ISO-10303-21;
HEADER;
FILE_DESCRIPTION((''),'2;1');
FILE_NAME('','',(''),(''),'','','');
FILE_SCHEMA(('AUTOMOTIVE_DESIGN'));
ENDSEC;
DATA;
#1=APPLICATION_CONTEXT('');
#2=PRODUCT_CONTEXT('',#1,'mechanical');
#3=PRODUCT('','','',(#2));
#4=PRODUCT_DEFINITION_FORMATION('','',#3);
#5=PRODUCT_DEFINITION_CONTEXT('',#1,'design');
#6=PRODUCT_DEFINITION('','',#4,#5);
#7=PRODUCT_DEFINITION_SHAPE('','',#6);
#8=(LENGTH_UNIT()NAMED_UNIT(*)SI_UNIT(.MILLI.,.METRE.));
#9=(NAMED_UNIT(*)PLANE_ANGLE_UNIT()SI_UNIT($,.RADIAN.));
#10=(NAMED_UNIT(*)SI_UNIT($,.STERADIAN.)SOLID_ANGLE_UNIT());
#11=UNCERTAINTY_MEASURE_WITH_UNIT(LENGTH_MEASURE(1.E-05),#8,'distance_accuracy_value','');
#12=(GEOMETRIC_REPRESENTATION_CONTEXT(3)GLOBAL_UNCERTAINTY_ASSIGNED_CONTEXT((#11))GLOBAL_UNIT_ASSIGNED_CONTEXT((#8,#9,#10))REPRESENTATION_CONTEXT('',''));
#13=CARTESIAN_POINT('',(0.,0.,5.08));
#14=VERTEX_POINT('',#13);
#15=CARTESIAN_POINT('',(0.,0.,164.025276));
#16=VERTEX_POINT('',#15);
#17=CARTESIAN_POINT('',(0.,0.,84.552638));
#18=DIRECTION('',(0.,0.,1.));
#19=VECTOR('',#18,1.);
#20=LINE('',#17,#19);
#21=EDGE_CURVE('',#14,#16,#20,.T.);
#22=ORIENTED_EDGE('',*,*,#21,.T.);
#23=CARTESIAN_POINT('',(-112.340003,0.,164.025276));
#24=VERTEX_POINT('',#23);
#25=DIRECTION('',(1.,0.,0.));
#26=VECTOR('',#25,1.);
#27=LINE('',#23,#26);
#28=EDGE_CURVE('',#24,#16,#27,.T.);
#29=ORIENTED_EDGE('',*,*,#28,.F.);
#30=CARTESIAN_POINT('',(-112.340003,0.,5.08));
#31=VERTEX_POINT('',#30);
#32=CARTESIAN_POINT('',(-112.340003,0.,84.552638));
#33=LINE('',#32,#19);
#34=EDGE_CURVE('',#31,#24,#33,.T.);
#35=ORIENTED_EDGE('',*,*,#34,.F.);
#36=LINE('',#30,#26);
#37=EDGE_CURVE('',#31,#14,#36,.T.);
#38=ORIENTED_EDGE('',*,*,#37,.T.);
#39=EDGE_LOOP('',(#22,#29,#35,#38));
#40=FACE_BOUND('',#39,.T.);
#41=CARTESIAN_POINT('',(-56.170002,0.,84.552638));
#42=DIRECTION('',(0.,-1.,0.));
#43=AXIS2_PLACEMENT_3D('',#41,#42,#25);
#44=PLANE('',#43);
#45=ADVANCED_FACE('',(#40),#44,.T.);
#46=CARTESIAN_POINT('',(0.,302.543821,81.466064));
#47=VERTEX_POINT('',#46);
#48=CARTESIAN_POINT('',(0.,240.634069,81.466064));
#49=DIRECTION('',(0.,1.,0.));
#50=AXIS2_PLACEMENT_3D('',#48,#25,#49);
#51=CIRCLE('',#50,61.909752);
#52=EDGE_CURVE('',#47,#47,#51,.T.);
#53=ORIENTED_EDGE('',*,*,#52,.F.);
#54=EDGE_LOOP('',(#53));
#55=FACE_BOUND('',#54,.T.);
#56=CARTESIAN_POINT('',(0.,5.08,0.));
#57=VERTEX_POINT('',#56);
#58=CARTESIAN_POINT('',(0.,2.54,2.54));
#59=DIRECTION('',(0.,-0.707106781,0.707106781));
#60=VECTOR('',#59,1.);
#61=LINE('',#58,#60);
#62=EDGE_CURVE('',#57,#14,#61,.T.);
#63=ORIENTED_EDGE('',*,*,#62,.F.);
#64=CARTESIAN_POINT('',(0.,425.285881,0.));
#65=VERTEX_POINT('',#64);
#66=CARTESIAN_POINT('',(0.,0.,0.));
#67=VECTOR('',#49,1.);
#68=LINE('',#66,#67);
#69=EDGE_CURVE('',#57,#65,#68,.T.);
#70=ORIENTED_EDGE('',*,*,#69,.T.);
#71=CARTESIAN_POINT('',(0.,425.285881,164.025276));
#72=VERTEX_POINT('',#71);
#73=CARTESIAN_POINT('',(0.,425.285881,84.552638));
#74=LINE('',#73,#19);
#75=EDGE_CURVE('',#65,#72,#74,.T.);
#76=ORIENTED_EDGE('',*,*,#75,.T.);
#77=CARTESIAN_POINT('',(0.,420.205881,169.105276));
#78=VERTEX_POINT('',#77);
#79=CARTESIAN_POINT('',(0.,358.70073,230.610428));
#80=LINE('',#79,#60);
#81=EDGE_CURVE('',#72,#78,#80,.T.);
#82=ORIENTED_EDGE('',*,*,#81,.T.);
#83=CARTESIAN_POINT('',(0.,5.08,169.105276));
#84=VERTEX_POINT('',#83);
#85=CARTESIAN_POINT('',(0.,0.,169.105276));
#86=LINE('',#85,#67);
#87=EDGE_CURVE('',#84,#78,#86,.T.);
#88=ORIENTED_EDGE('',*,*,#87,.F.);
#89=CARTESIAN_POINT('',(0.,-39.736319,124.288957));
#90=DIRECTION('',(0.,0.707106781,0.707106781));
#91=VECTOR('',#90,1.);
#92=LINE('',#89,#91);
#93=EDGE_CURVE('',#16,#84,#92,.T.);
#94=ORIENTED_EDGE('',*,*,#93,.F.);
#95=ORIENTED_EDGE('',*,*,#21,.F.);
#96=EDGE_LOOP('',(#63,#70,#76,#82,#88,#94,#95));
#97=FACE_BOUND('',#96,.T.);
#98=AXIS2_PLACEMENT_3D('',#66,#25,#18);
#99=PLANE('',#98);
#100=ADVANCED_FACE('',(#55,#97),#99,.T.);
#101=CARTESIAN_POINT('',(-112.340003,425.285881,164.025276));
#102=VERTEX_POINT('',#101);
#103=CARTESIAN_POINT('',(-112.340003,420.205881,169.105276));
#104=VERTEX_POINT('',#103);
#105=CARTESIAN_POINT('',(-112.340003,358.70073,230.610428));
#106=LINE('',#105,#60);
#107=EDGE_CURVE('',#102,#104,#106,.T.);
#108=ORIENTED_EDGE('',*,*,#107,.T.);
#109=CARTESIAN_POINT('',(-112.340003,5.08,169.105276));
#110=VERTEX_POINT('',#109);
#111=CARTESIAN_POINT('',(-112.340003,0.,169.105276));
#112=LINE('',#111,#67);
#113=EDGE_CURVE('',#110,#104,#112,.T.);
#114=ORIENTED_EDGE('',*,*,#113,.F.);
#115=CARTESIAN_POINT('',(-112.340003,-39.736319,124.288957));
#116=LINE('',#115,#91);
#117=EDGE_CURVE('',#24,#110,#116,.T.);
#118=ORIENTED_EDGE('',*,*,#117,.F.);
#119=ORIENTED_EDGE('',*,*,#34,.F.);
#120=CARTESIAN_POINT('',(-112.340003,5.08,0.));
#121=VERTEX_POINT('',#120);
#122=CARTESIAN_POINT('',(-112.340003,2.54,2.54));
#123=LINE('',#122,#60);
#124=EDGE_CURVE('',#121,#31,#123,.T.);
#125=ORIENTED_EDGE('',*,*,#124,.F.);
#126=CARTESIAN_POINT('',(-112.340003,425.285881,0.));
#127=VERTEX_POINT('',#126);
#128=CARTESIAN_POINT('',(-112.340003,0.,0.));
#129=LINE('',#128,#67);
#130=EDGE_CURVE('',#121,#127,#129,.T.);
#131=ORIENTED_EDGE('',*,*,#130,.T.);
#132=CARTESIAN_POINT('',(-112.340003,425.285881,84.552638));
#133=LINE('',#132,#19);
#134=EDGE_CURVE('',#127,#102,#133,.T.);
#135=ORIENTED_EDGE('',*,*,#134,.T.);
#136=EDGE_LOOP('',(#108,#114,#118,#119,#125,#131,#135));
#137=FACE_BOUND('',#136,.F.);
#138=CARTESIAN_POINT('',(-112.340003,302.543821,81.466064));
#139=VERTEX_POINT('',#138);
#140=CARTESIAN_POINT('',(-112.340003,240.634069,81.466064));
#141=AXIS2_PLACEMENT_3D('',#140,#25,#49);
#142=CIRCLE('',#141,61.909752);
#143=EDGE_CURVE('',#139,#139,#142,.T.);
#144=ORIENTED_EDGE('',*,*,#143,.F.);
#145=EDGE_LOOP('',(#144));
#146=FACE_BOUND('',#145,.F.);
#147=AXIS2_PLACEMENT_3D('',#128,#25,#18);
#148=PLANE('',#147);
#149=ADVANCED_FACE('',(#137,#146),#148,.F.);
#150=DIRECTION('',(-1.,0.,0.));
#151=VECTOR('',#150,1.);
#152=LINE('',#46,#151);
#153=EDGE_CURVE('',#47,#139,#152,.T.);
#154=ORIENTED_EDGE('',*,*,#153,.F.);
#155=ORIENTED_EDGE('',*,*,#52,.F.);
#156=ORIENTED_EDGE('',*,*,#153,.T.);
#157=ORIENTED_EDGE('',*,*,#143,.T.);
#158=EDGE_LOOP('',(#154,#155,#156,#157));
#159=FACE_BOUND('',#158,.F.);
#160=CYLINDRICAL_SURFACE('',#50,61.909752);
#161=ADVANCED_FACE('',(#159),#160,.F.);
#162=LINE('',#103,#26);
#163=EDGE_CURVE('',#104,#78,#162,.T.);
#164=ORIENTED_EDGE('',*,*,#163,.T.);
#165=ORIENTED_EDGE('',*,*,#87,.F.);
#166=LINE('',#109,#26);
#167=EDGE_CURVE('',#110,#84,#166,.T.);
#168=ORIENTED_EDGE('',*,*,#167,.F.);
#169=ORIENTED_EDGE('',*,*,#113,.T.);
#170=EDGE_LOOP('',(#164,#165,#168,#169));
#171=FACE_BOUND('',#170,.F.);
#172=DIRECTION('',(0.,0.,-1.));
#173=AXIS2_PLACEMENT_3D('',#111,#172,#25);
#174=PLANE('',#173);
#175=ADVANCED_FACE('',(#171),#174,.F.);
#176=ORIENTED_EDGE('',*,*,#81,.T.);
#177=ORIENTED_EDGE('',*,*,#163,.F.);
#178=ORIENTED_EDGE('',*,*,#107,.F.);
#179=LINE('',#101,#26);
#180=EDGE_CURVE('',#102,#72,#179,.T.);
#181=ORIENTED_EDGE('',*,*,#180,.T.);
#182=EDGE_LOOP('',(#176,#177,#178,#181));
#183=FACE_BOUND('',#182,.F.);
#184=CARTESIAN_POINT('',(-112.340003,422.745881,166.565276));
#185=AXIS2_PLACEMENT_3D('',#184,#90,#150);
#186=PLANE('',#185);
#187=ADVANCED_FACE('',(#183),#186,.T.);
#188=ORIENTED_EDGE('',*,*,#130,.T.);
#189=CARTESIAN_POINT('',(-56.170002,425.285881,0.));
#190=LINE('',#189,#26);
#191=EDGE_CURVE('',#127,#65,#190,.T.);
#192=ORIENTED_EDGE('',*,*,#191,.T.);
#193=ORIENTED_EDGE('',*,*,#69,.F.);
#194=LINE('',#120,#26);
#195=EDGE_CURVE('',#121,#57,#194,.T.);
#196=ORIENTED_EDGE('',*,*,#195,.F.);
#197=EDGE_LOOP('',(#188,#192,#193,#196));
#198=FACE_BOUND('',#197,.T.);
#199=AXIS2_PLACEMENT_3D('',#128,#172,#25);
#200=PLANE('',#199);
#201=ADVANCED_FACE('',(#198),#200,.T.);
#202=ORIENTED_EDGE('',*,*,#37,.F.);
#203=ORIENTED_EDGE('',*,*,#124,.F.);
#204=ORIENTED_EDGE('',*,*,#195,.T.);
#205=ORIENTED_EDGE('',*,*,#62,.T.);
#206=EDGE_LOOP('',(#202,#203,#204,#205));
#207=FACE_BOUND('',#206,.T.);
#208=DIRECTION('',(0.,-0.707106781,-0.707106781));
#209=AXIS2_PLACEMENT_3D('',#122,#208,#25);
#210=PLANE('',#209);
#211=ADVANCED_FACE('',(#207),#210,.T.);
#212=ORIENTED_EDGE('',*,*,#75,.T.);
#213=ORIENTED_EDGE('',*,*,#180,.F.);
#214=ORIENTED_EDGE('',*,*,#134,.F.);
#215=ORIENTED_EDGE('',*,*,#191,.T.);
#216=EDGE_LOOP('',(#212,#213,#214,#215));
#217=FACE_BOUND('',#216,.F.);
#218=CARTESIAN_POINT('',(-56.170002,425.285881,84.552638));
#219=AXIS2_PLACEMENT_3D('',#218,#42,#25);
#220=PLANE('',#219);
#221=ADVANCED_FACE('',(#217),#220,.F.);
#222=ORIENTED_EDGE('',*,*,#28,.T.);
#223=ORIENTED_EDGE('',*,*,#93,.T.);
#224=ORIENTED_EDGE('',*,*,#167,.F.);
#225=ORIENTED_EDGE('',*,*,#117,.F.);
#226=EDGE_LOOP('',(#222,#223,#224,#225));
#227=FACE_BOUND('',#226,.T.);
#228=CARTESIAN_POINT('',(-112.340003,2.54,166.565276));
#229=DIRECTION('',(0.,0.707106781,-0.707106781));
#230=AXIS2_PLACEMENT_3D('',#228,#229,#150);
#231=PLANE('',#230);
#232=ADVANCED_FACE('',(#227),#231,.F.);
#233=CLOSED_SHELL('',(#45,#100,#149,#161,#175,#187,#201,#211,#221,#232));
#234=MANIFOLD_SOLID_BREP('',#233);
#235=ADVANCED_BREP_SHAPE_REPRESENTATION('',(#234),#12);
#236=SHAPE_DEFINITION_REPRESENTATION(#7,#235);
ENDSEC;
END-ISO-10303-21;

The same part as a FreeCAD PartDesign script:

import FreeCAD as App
import Part
import Sketcher

V = App.Vector


def edges_at(feature, points):
    """Names of the edges that pass closest to the given points."""
    edges = feature.Shape.Edges
    near = lambda p: min(range(len(edges)), key=lambda i: edges[i].distToShape(Part.Vertex(*p))[0])
    return sorted({f"Edge{near(p) + 1}" for p in points})

doc = App.newDocument("Part")
params = doc.addObject("Spreadsheet::Sheet", "Params")
for row, (alias, value) in enumerate([
    ("pad1_length", "425.285881 mm"),
    ("pocket1_length", "148.800274 mm"),
    ("chamfer_size", "0.2 in"),
], start=1):
    params.set(f"A{row}", alias)
    params.set(f"B{row}", "=" + value)
    params.setAlias(f"B{row}", alias)

body = doc.addObject("PartDesign::Body", "Body")

# Sketch on XZ plane
sketch1 = body.newObject("Sketcher::SketchObject", "Sketch")
sketch1.AttachmentSupport = (doc.getObject("XZ_Plane"), [""])
sketch1.MapMode = "FlatFace"
sketch1.addGeometry(Part.LineSegment(V(-112, 169, 0), V(-112, 0, 0)), False)
sketch1.addGeometry(Part.LineSegment(V(-112, 0, 0), V(0, 0, 0)), False)
sketch1.addGeometry(Part.LineSegment(V(0, 0, 0), V(0, 169, 0)), False)
sketch1.addGeometry(Part.LineSegment(V(0, 169, 0), V(-112, 169, 0)), False)
sketch1.addConstraint(Sketcher.Constraint("Coincident", 0, 2, 1, 1))
sketch1.addConstraint(Sketcher.Constraint("Coincident", 1, 2, 2, 1))
sketch1.addConstraint(Sketcher.Constraint("Coincident", 2, 2, 3, 1))
sketch1.addConstraint(Sketcher.Constraint("Coincident", 3, 2, 0, 1))
sketch1.addConstraint(Sketcher.Constraint("Vertical", 0))
sketch1.addConstraint(Sketcher.Constraint("Horizontal", 1))
sketch1.addConstraint(Sketcher.Constraint("Vertical", 2))
sketch1.addConstraint(Sketcher.Constraint("Horizontal", 3))
sketch1.addConstraint(Sketcher.Constraint("Coincident", 1, 2, -1, 1))
sketch1.addConstraint(Sketcher.Constraint("DistanceX", 1, 1, 1, 2, 112.340003))
sketch1.addConstraint(Sketcher.Constraint("DistanceY", 0, 2, 0, 1, 169.105276))
pad1 = body.newObject("PartDesign::Pad", "Pad")
pad1.Profile = sketch1
pad1.setExpression("Length", "Params.pad1_length")
pad1.Reversed = True

# Sketch on YZ plane
sketch2 = body.newObject("Sketcher::SketchObject", "Sketch001")
sketch2.AttachmentSupport = (doc.getObject("YZ_Plane"), [""])
sketch2.MapMode = "FlatFace"
sketch2.addGeometry(Part.Circle(V(241, 81, 0), V(0, 0, 1), 62), False)
sketch2.addConstraint(Sketcher.Constraint("Diameter", 0, 123.819504))
sketch2.addConstraint(Sketcher.Constraint("DistanceX", -1, 1, 0, 3, 240.634069))
sketch2.addConstraint(Sketcher.Constraint("DistanceY", -1, 1, 0, 3, 81.466064))
pocket1 = body.newObject("PartDesign::Pocket", "Pocket")
pocket1.Profile = sketch2
pocket1.setExpression("Length", "Params.pocket1_length")
doc.recompute()

chamfer = body.newObject("PartDesign::Chamfer", "Chamfer")
chamfer.Base = (pocket1, edges_at(pocket1, [(-56.17, 425.286, 169.105), (-56.17, 0, 169.105), (-56.17, 0, 0)]))
chamfer.setExpression("Size", "Params.chamfer_size")

doc.recompute()
